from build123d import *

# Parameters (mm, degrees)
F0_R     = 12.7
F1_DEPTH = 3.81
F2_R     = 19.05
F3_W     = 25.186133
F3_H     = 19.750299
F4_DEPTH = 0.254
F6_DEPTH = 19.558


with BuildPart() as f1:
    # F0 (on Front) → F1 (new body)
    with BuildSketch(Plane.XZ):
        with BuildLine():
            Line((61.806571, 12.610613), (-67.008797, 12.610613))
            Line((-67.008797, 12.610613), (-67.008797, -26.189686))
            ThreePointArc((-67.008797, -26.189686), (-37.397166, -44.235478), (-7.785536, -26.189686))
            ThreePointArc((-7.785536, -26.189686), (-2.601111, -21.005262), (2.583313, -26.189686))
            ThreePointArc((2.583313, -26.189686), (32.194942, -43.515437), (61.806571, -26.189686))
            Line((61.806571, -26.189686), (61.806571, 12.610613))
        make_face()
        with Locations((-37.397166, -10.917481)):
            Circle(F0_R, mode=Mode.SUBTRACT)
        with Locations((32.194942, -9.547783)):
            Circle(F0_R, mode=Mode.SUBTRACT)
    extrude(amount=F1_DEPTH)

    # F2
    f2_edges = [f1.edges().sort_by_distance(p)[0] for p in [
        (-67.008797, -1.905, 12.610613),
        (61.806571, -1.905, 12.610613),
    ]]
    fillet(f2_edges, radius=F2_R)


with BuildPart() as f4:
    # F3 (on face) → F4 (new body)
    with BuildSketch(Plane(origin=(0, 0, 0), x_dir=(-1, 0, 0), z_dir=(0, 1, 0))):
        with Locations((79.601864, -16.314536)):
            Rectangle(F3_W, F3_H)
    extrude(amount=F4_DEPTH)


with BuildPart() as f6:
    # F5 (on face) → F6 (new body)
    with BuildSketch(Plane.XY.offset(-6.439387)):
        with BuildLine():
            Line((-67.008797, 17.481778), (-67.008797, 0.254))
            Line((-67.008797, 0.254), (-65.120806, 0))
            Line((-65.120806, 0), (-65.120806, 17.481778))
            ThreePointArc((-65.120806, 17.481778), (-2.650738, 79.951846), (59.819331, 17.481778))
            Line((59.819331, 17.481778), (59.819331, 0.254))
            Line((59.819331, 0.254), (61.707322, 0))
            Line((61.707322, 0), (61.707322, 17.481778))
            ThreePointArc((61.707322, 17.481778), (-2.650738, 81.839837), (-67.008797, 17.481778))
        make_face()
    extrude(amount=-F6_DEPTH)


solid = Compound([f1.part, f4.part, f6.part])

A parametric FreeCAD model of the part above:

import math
import FreeCAD as App
import Part
import Sketcher
from FreeCAD import Vector
Q = App.Units.Quantity


def edges_at(feature, points):
    """Names of the edges that pass closest to the given points."""
    edges = feature.Shape.Edges
    near = lambda p: min(range(len(edges)), key=lambda i: edges[i].distToShape(Part.Vertex(*p))[0])
    return sorted({f"Edge{near(p) + 1}" for p in points})


def add_polygon(sketch, points):
    """Adds a closed chain of lines whose ends are joined by coincident constraints."""
    first, n = sketch.GeometryCount, len(points)
    for a, b in zip(points, points[1:] + points[:1]):
        sketch.addGeometry(Part.LineSegment(App.Vector(*a, 0), App.Vector(*b, 0)), False)
    for i in range(n):
        sketch.addConstraint(Sketcher.Constraint("Coincident", first + i, 2, first + (i + 1) % n, 1))

doc = App.newDocument("Part")
body = doc.addObject("PartDesign::Body", "Body")

sketch1 = doc.addObject("Sketcher::SketchObject", "Sketch")
body.addObject(sketch1)
sketch1.AttachmentSupport = (doc.XZ_Plane, [""])
sketch1.MapMode = "FlatFace"
sketch1.addGeometry([
    Part.LineSegment(Vector(62, 13, 0), Vector(-67, 13, 0)),
    Part.LineSegment(Vector(-67, 13, 0), Vector(-67, -26, 0)),
    Part.ArcOfCircle(Part.Circle(Vector(-37, -11, 0), Vector(0, 0, 1), 33), math.radians(-153), math.radians(-27)),
    Part.ArcOfCircle(Part.Circle(Vector(-3, -26, 0), Vector(0, 0, 1), 5), math.radians(0), math.radians(180)),
    Part.ArcOfCircle(Part.Circle(Vector(32, -10, 0), Vector(0, 0, 1), 34), math.radians(-151), math.radians(-29)),
    Part.LineSegment(Vector(62, -26, 0), Vector(62, 13, 0)),
    Part.Circle(Vector(-37, -11, 0), Vector(0, 0, 1), 13),
    Part.Circle(Vector(32, -10, 0), Vector(0, 0, 1), 13),
], False)
sketch1.addConstraint([
    Sketcher.Constraint("Coincident", 0, 2, 1, 1),
    Sketcher.Constraint("Coincident", 1, 2, 2, 1),
    Sketcher.Constraint("Coincident", 2, 2, 3, 2),
    Sketcher.Constraint("Coincident", 3, 1, 4, 1),
    Sketcher.Constraint("Coincident", 4, 2, 5, 1),
    Sketcher.Constraint("Coincident", 5, 2, 0, 1),
    Sketcher.Constraint("Horizontal", 0),
    Sketcher.Constraint("Vertical", 1),
    Sketcher.Constraint("Vertical", 5),
    Sketcher.Constraint("Coincident", 6, 3, 2, 3),
    Sketcher.Constraint("Coincident", 7, 3, 4, 3),
    Sketcher.Constraint("Equal", 6, 7),
    Sketcher.Constraint("Horizontal", 3, 3, 1, 2),
    Sketcher.Constraint("Horizontal", 1, 2, 2, 2),
    Sketcher.Constraint("Horizontal", 2, 2, 3, 1),
    Sketcher.Constraint("Horizontal", 3, 1, 4, 2),
    Sketcher.Constraint("Diameter", 6, Q("1 in")),
    Sketcher.Constraint("DistanceY", 1, 2, 1, 1, Q("38.800299 mm")),
    Sketcher.Constraint("Radius", 2, Q("33.317997 mm")),
    Sketcher.Constraint("Radius", 3, Q("5.184425 mm")),
    Sketcher.Constraint("Radius", 4, Q("33.967654 mm")),
    Sketcher.Constraint("DistanceX", 0, 2, 0, 1, Q("128.815368 mm")),
    Sketcher.Constraint("DistanceY", 2, 3, 4, 3, Q("1.369698 mm")),
    Sketcher.Constraint("DistanceY", 2, 3, -1, 1, Q("10.917481 mm")),
    Sketcher.Constraint("DistanceX", 3, 3, -1, 1, Q("2.601112 mm")),
])
pad1 = doc.addObject("PartDesign::Pad", "Pad")
body.addObject(pad1)
pad1.Profile = sketch1
pad1.Length = Q("0.15 in")
doc.recompute()

fillet = doc.addObject("PartDesign::Fillet", "Fillet")
body.addObject(fillet)
fillet.Base = (pad1, edges_at(pad1, [(-67.009, -1.905, 12.611), (61.807, -1.905, 12.611)]))
fillet.Radius = Q("0.75 in")
body2 = doc.addObject("PartDesign::Body", "Body001")

sketch2 = doc.addObject("Sketcher::SketchObject", "Sketch001")
body2.addObject(sketch2)
sketch2.AttachmentSupport = (doc.getObject("XZ_Plane001"), [""])
sketch2.MapMode = "FlatFace"
add_polygon(sketch2, [(-67, -6), (-67, -26), (-92, -26), (-92, -6)])
sketch2.addConstraint([
    Sketcher.Constraint("Vertical", 0),
    Sketcher.Constraint("Horizontal", 1),
    Sketcher.Constraint("Vertical", 2),
    Sketcher.Constraint("Horizontal", 3),
    Sketcher.Constraint("DistanceY", 0, 2, 0, 1, Q("19.750299 mm")),
    Sketcher.Constraint("DistanceX", 1, 2, 1, 1, Q("25.186133 mm")),
    Sketcher.Constraint("DistanceX", 1, 2, -1, 1, Q("92.19493 mm")),
    Sketcher.Constraint("DistanceY", 0, 2, -1, 1, Q("26.189685 mm")),
])
pad2 = doc.addObject("PartDesign::Pad", "Pad001")
body2.addObject(pad2)
pad2.Profile = sketch2
pad2.Length = Q("0.01 in")
pad2.Reversed = True
body3 = doc.addObject("PartDesign::Body", "Body002")

sketch3 = doc.addObject("Sketcher::SketchObject", "Sketch002")
body3.addObject(sketch3)
sketch3.AttachmentSupport = (doc.getObject("XY_Plane002"), [""])
sketch3.MapMode = "FlatFace"
sketch3.AttachmentOffset = App.Placement(Vector(0, 0, -6.439387), App.Rotation())
sketch3.addGeometry([
    Part.LineSegment(Vector(-67, 17.5, 0), Vector(-67, 0.3, 0)),
    Part.LineSegment(Vector(-67, 0.3, 0), Vector(-65.1, 0, 0)),
    Part.LineSegment(Vector(-65.1, 0, 0), Vector(-65.1, 17.5, 0)),
    Part.ArcOfCircle(Part.Circle(Vector(-2.7, 17.5, 0), Vector(0, 0, 1), 62.5), math.radians(0), math.radians(180)),
    Part.LineSegment(Vector(59.8, 17.5, 0), Vector(59.8, 0.3, 0)),
    Part.LineSegment(Vector(59.8, 0.3, 0), Vector(61.7, 0, 0)),
    Part.LineSegment(Vector(61.7, 0, 0), Vector(61.7, 17.5, 0)),
    Part.ArcOfCircle(Part.Circle(Vector(-2.7, 17.5, 0), Vector(0, 0, 1), 64.4), math.radians(0), math.radians(180)),
], False)
sketch3.addConstraint([
    Sketcher.Constraint("Coincident", 0, 2, 1, 1),
    Sketcher.Constraint("Coincident", 1, 2, 2, 1),
    Sketcher.Constraint("Tangent", 2, 2, 3, 2),
    Sketcher.Constraint("Tangent", 3, 1, 4, 1),
    Sketcher.Constraint("Coincident", 4, 2, 5, 1),
    Sketcher.Constraint("Coincident", 5, 2, 6, 1),
    Sketcher.Constraint("Tangent", 6, 2, 7, 1),
    Sketcher.Constraint("Tangent", 7, 2, 0, 1),
    Sketcher.Constraint("Vertical", 0),
    Sketcher.Constraint("Vertical", 2),
    Sketcher.Constraint("Vertical", 4),
    Sketcher.Constraint("Vertical", 6),
    Sketcher.Constraint("Coincident", 7, 3, 3, 3),
    Sketcher.Constraint("PointOnObject", 1, 2, -1),
    Sketcher.Constraint("PointOnObject", 5, 2, -1),
    Sketcher.Constraint("Parallel", 1, 5),
    Sketcher.Constraint("DistanceY", -1, 1, 0, 2, Q("0.01 in")),
    Sketcher.Constraint("Distance", 1, Q("0.075 in")),
    Sketcher.Constraint("Radius", 3, Q("62.470068 mm")),
    Sketcher.Constraint("DistanceY", 0, 2, 0, 1, Q("17.227778 mm")),
    Sketcher.Constraint("DistanceX", -1, 1, 3, 1, Q("59.819331 mm")),
])
pad3 = doc.addObject("PartDesign::Pad", "Pad002")
body3.addObject(pad3)
pad3.Profile = sketch3
pad3.Length = Q("0.77 in")
pad3.Reversed = True

doc.recompute()
